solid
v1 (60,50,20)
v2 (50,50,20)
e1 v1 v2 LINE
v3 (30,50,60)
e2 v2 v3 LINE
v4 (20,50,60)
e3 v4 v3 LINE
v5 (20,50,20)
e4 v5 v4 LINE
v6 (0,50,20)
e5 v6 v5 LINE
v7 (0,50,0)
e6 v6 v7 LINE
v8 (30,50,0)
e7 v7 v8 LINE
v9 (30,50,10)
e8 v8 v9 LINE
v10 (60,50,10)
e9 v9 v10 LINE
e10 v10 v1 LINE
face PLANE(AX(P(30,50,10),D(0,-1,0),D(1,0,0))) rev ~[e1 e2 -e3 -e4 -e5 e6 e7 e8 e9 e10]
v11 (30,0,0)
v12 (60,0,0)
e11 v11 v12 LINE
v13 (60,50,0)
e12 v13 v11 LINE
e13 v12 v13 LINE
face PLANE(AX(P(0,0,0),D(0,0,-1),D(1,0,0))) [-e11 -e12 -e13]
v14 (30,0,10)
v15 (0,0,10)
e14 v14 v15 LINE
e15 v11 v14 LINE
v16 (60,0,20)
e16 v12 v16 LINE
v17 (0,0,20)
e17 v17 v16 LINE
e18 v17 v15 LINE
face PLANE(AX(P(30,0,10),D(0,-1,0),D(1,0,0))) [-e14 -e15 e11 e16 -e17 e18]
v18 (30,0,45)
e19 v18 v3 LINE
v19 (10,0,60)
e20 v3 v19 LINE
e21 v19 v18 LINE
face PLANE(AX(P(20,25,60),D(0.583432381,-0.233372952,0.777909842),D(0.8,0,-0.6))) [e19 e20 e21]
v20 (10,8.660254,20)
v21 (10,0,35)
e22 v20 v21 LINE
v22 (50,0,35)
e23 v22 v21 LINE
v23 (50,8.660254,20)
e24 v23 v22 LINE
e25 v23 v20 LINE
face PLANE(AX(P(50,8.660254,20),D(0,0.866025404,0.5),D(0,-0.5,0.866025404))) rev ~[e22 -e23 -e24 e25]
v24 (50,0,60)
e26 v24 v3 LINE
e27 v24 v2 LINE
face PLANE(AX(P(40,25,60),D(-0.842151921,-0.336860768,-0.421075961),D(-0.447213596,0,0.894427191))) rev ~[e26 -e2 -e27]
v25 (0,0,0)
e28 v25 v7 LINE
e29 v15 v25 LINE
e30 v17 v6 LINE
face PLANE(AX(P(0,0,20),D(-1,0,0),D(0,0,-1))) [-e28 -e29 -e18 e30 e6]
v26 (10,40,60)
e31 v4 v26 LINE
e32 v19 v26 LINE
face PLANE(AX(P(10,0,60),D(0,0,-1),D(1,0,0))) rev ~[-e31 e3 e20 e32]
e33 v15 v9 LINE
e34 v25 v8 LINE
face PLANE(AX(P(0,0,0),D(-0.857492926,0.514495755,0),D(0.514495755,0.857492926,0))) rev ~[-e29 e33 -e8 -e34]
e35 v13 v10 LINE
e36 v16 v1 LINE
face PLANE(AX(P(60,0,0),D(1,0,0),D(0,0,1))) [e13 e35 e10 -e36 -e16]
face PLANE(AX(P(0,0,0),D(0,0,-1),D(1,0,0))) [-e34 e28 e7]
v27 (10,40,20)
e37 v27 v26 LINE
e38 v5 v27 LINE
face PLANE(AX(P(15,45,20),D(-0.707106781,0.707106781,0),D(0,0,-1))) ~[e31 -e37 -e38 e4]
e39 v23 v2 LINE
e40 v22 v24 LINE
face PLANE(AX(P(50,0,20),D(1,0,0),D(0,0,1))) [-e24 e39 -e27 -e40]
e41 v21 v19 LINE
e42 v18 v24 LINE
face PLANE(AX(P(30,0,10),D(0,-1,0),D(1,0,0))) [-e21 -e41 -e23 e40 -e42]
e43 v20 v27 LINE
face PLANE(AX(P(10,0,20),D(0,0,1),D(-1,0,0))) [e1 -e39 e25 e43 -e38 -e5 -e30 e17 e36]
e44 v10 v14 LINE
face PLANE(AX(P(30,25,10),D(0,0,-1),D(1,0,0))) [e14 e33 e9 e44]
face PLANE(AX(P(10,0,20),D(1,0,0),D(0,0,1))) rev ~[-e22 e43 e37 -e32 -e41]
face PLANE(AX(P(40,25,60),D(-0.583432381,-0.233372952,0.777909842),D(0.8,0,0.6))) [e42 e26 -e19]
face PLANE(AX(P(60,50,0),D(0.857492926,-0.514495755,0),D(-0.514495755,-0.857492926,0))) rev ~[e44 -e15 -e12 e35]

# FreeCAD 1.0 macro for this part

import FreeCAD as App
import Part
import Sketcher
Q = App.Units.Quantity


def edges_at(feature, points):
    """Names of the edges that pass closest to the given points."""
    edges = feature.Shape.Edges
    near = lambda p: min(range(len(edges)), key=lambda i: edges[i].distToShape(Part.Vertex(*p))[0])
    return sorted({f"Edge{near(p) + 1}" for p in points})

doc = App.newDocument("Part")
body = doc.addObject("PartDesign::Body", "Body")

sketch1 = body.newObject("Sketcher::SketchObject", "Sketch")
sketch1.AttachmentSupport = (doc.getObject("XZ_Plane"), [""])
sketch1.MapMode = "FlatFace"
sketch1.addGeometry([
    Part.LineSegment(App.Vector(0, 20, 0), App.Vector(0, 0, 0)),
    Part.LineSegment(App.Vector(0, 0, 0), App.Vector(60, 0, 0)),
    Part.LineSegment(App.Vector(60, 0, 0), App.Vector(60, 20, 0)),
    Part.LineSegment(App.Vector(60, 20, 0), App.Vector(50, 20, 0)),
    Part.LineSegment(App.Vector(50, 20, 0), App.Vector(50, 60, 0)),
    Part.LineSegment(App.Vector(50, 60, 0), App.Vector(10, 60, 0)),
    Part.LineSegment(App.Vector(10, 60, 0), App.Vector(10, 20, 0)),
    Part.LineSegment(App.Vector(10, 20, 0), App.Vector(0, 20, 0)),
], False)
sketch1.addConstraint([
    Sketcher.Constraint("Coincident", 0, 2, 1, 1),
    Sketcher.Constraint("Coincident", 1, 2, 2, 1),
    Sketcher.Constraint("Coincident", 2, 2, 3, 1),
    Sketcher.Constraint("Coincident", 3, 2, 4, 1),
    Sketcher.Constraint("Coincident", 4, 2, 5, 1),
    Sketcher.Constraint("Coincident", 5, 2, 6, 1),
    Sketcher.Constraint("Coincident", 6, 2, 7, 1),
    Sketcher.Constraint("Coincident", 7, 2, 0, 1),
    Sketcher.Constraint("Vertical", 0),
    Sketcher.Constraint("Horizontal", 1),
    Sketcher.Constraint("Vertical", 2),
    Sketcher.Constraint("Horizontal", 3),
    Sketcher.Constraint("Vertical", 4),
    Sketcher.Constraint("Horizontal", 5),
    Sketcher.Constraint("Vertical", 6),
    Sketcher.Constraint("Horizontal", 7),
    Sketcher.Constraint("Coincident", 0, 2, -1, 1),
    Sketcher.Constraint("Horizontal", 3, 2, 6, 2),
    Sketcher.Constraint("Equal", 3, 7),
    Sketcher.Constraint("Equal", 5, 4),
    Sketcher.Constraint("DistanceX", 1, 1, 1, 2, 60.0),
    Sketcher.Constraint("DistanceX", 3, 2, 3, 1, 10.0),
    Sketcher.Constraint("DistanceY", 0, 2, 0, 1, 20.0),
])
pad1 = body.newObject("PartDesign::Pad", "Pad")
pad1.Profile = sketch1
pad1.Length = 50
pad1.Reversed = True

sketch2 = body.newObject("Sketcher::SketchObject", "Sketch001")
sketch2.AttachmentSupport = (doc.getObject("XY_Plane"), [""])
sketch2.MapMode = "FlatFace"
sketch2.addGeometry([
    Part.LineSegment(App.Vector(30, 0, 0), App.Vector(0, 0, 0)),
    Part.LineSegment(App.Vector(0, 0, 0), App.Vector(30, 50, 0)),
    Part.LineSegment(App.Vector(30, 50, 0), App.Vector(60, 50, 0)),
    Part.LineSegment(App.Vector(60, 50, 0), App.Vector(30, 0, 0)),
], False)
sketch2.addConstraint([
    Sketcher.Constraint("Coincident", 0, 2, 1, 1),
    Sketcher.Constraint("Coincident", 1, 2, 2, 1),
    Sketcher.Constraint("Coincident", 2, 2, 3, 1),
    Sketcher.Constraint("Coincident", 3, 2, 0, 1),
    Sketcher.Constraint("Horizontal", 0),
    Sketcher.Constraint("Horizontal", 2),
    Sketcher.Constraint("Coincident", 0, 2, -1, 1),
    Sketcher.Constraint("Parallel", 1, 3),
    Sketcher.Constraint("Vertical", 1, 2, 3, 2),
    Sketcher.Constraint("DistanceX", 0, 2, 0, 1, 30.0),
    Sketcher.Constraint("DistanceY", -1, 1, 1, 2, 50.0),
])
pocket1 = body.newObject("PartDesign::Pocket", "Pocket")
pocket1.Profile = sketch2
pocket1.Length = 10
pocket1.Reversed = True

sketch3 = body.newObject("Sketcher::SketchObject", "Sketch002")
sketch3.AttachmentSupport = (doc.getObject("YZ_Plane"), [""])
sketch3.MapMode = "FlatFace"
sketch3.AttachmentOffset = App.Placement(App.Vector(0, 0, 50), App.Rotation())
sketch3.addGeometry([
    Part.LineSegment(App.Vector(0, 35, 0), App.Vector(0, 20, 0)),
    Part.LineSegment(App.Vector(0, 20, 0), App.Vector(9, 20, 0)),
    Part.LineSegment(App.Vector(9, 20, 0), App.Vector(0, 35, 0)),
], False)
sketch3.addConstraint([
    Sketcher.Constraint("Coincident", 0, 2, 1, 1),
    Sketcher.Constraint("Coincident", 1, 2, 2, 1),
    Sketcher.Constraint("Coincident", 2, 2, 0, 1),
    Sketcher.Constraint("Vertical", 0),
    Sketcher.Constraint("Horizontal", 1),
    Sketcher.Constraint("PointOnObject", 0, 2, -2),
    Sketcher.Constraint("DistanceY", 0, 2, 0, 1, 15.0),
    Sketcher.Constraint("Angle", 2, Q("120 deg")),
    Sketcher.Constraint("DistanceY", -1, 1, 0, 2, 20.0),
])
pocket2 = body.newObject("PartDesign::Pocket", "Pocket001")
pocket2.Profile = sketch3
pocket2.Type = "ThroughAll"
doc.recompute()

chamfer = body.newObject("PartDesign::Chamfer", "Chamfer")
chamfer.Base = (pocket2, edges_at(pocket2, [(10, 50, 40)]))
chamfer.Size = 10

sketch4 = body.newObject("Sketcher::SketchObject", "Sketch003")
sketch4.AttachmentSupport = (doc.getObject("XZ_Plane"), [""])
sketch4.MapMode = "FlatFace"
sketch4.addGeometry([
    Part.LineSegment(App.Vector(50, 60, 0), App.Vector(10, 60, 0)),
    Part.LineSegment(App.Vector(10, 60, 0), App.Vector(30, 45, 0)),
    Part.LineSegment(App.Vector(30, 45, 0), App.Vector(50, 60, 0)),
], False)
sketch4.addConstraint([
    Sketcher.Constraint("Coincident", 0, 2, 1, 1),
    Sketcher.Constraint("Coincident", 1, 2, 2, 1),
    Sketcher.Constraint("Coincident", 2, 2, 0, 1),
    Sketcher.Constraint("Horizontal", 0),
    Sketcher.Constraint("Equal", 1, 2),
    Sketcher.Constraint("DistanceX", 0, 2, 0, 1, 40.0),
    Sketcher.Constraint("Distance", 1, 25.0),
    Sketcher.Constraint("DistanceX", -1, 1, 0, 2, 10.0),
    Sketcher.Constraint("DistanceY", -1, 1, 0, 2, 60.0),
])

sketch5 = body.newObject("Sketcher::SketchObject", "Sketch004")
sketch5.Placement = App.Placement(App.Vector(0, -12.385321, 41.284404), App.Rotation(App.Vector(0, 0.957826285, 0.287347886), App.Vector(1, 0, 0), App.Vector(0, 0.287347886, -0.957826285), "ZXY"))
sketch5.addGeometry(Part.LineSegment(App.Vector(13, 50, 0), App.Vector(65, 50, 0)), False)
sketch5.addConstraint([
    Sketcher.Constraint("Horizontal", 0),
    Sketcher.Constraint("DistanceY", -1, 1, 0, 1, 50.0),
    Sketcher.Constraint("DistanceX", 0, 1, 0, 2, 52.201533),
    Sketcher.Constraint("DistanceX", -1, 1, 0, 1, 12.930655),
])
doc.recompute()

subtractivepipe = body.newObject("PartDesign::SubtractivePipe", "SubtractivePipe")
subtractivepipe.Profile = sketch4
subtractivepipe.Spine = (sketch5, ["Edge1"])

sketch6 = body.newObject("Sketcher::SketchObject", "Sketch005")
sketch6.AttachmentSupport = (doc.getObject("XZ_Plane"), [""])
sketch6.MapMode = "FlatFace"
sketch6.AttachmentOffset = App.Placement(App.Vector(0, 0, -50), App.Rotation())
sketch6.addGeometry([
    Part.LineSegment(App.Vector(50, 20, 0), App.Vector(30, 60, 0)),
    Part.LineSegment(App.Vector(30, 60, 0), App.Vector(50, 60, 0)),
    Part.LineSegment(App.Vector(50, 60, 0), App.Vector(50, 20, 0)),
], False)
sketch6.addConstraint([
    Sketcher.Constraint("Coincident", 0, 2, 1, 1),
    Sketcher.Constraint("Coincident", 1, 2, 2, 1),
    Sketcher.Constraint("Coincident", 2, 2, 0, 1),
    Sketcher.Constraint("Horizontal", 1),
    Sketcher.Constraint("Vertical", 2),
    Sketcher.Constraint("DistanceX", 1, 1, 1, 2, 20.0),
    Sketcher.Constraint("DistanceY", 2, 2, 2, 1, 40.0),
    Sketcher.Constraint("DistanceX", -1, 1, 0, 2, 30.0),
    Sketcher.Constraint("DistanceY", -1, 1, 0, 2, 60.0),
])

sketch7 = body.newObject("Sketcher::SketchObject", "Sketch006")
sketch7.Placement = App.Placement(App.Vector(0, 29.268293, 36.585366), App.Rotation(App.Vector(0, -0.780868809, 0.624695048), App.Vector(1, 0, 0), App.Vector(0, 0.624695048, 0.780868809), "ZXY"))
sketch7.addGeometry(Part.LineSegment(App.Vector(37, 50, 0), App.Vector(-27, 50, 0)), False)
sketch7.addConstraint([
    Sketcher.Constraint("Horizontal", 0),
    Sketcher.Constraint("DistanceY", -1, 1, 0, 1, 50.0),
    Sketcher.Constraint("DistanceX", 0, 2, 0, 1, 64.031242),
    Sketcher.Constraint("DistanceX", 0, 2, -1, 1, 26.54954),
])
doc.recompute()

subtractivepipe2 = body.newObject("PartDesign::SubtractivePipe", "SubtractivePipe001")
subtractivepipe2.Profile = sketch6
subtractivepipe2.Spine = (sketch7, ["Edge1"])

doc.recompute()
